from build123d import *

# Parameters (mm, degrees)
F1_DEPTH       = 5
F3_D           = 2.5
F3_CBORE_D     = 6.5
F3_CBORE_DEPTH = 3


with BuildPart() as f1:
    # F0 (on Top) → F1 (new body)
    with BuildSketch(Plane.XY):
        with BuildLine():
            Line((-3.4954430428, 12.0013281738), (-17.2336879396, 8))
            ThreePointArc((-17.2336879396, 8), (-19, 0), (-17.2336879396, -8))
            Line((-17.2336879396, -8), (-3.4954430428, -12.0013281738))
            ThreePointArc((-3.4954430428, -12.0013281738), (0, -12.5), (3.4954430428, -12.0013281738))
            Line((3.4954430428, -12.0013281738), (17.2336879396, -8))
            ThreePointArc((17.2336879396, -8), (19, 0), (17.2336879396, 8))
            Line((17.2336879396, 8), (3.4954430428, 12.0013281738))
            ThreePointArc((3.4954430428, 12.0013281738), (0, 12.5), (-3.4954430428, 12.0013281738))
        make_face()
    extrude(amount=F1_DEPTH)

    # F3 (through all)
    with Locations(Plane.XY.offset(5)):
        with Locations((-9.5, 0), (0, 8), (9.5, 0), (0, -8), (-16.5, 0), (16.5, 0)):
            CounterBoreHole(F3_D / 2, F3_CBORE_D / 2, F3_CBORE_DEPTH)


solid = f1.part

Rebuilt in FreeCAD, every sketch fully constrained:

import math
import FreeCAD as App
import Part
import Sketcher
Q = App.Units.Quantity

doc = App.newDocument("Part")
body = doc.addObject("PartDesign::Body", "Body")

# Sketch on XY plane
sketch1 = doc.addObject("Sketcher::SketchObject", "Sketch")
body.addObject(sketch1)
sketch1.AttachmentSupport = (doc.XY_Plane, [""])
sketch1.MapMode = "FlatFace"
sketch1.addGeometry([
    Part.LineSegment(App.Vector(-3, 12, 0), App.Vector(-17, 8, 0)),  # 0
    Part.ArcOfCircle(Part.Circle(App.Vector(0, 0, 0), App.Vector(0, 0, 1), 19), math.radians(155), math.radians(205)),  # 1
    Part.LineSegment(App.Vector(-17, -8, 0), App.Vector(-3, -12, 0)),  # 2
    Part.ArcOfCircle(Part.Circle(App.Vector(0, 0, 0), App.Vector(0, 0, 1), 13), math.radians(-106), math.radians(-74)),  # 3
    Part.LineSegment(App.Vector(3, -12, 0), App.Vector(17, -8, 0)),  # 4
    Part.ArcOfCircle(Part.Circle(App.Vector(0, 0, 0), App.Vector(0, 0, 1), 19), math.radians(-25), math.radians(25)),  # 5
    Part.LineSegment(App.Vector(17, 8, 0), App.Vector(3, 12, 0)),  # 6
    Part.ArcOfCircle(Part.Circle(App.Vector(0, 0, 0), App.Vector(0, 0, 1), 13), math.radians(74), math.radians(106)),  # 7
], False)
sketch1.addConstraint([
    Sketcher.Constraint("Coincident", 0, 2, 1, 1),
    Sketcher.Constraint("Coincident", 1, 2, 2, 1),
    Sketcher.Constraint("Tangent", 2, 2, 3, 1),
    Sketcher.Constraint("Tangent", 3, 2, 4, 1),
    Sketcher.Constraint("Coincident", 4, 2, 5, 1),
    Sketcher.Constraint("Coincident", 5, 2, 6, 1),
    Sketcher.Constraint("Tangent", 6, 2, 7, 1),
    Sketcher.Constraint("Tangent", 7, 2, 0, 1),
    Sketcher.Constraint("Coincident", 1, 3, -1, 1),
    Sketcher.Constraint("Coincident", 3, 3, -1, 1),
    Sketcher.Constraint("Coincident", 5, 3, -1, 1),
    Sketcher.Constraint("Coincident", 7, 3, -1, 1),
    Sketcher.Constraint("Equal", 1, 5),
    Sketcher.Constraint("Equal", 3, 7),
    Sketcher.Constraint("Parallel", 0, 4),
    Sketcher.Constraint("Parallel", 2, 6),
    Sketcher.Constraint("Horizontal", 2, 2, 3, 2),
    Sketcher.Constraint("Radius", 1, Q("19 mm")),
    Sketcher.Constraint("Radius", 3, Q("12.5 mm")),
    Sketcher.Constraint("DistanceY", -1, 1, 0, 2, Q("8 mm")),
])
pad1 = doc.addObject("PartDesign::Pad", "Pad")
body.addObject(pad1)
pad1.Profile = sketch1
pad1.Length = 5

# Sketch on XY plane
sketch2 = doc.addObject("Sketcher::SketchObject", "Sketch001")
body.addObject(sketch2)
sketch2.AttachmentSupport = (doc.XY_Plane, [""])
sketch2.MapMode = "FlatFace"
sketch2.AttachmentOffset = App.Placement(App.Vector(0, 0, 5), App.Rotation())
sketch2.addGeometry([
    Part.Circle(App.Vector(-9.5, 0, 0), App.Vector(0, 0, 1), 1.2),  # 0
    Part.Circle(App.Vector(0, 8, 0), App.Vector(0, 0, 1), 1.2),  # 1
    Part.Circle(App.Vector(9.5, 0, 0), App.Vector(0, 0, 1), 1.2),  # 2
    Part.Circle(App.Vector(0, -8, 0), App.Vector(0, 0, 1), 1.2),  # 3
    Part.Circle(App.Vector(-16.5, 0, 0), App.Vector(0, 0, 1), 1.2),  # 4
    Part.Circle(App.Vector(16.5, 0, 0), App.Vector(0, 0, 1), 1.2),  # 5
], False)
sketch2.addConstraint([
    Sketcher.Constraint("Equal", 0, 1),
    Sketcher.Constraint("Equal", 1, 2),
    Sketcher.Constraint("Equal", 2, 3),
    Sketcher.Constraint("Equal", 3, 4),
    Sketcher.Constraint("Equal", 4, 5),
    Sketcher.Constraint("Symmetric", 0, 3, 2, 3, -1, 1),
    Sketcher.Constraint("Symmetric", 1, 3, 3, 3, -1, 1),
    Sketcher.Constraint("Symmetric", 4, 3, 5, 3, -1, 1),
    Sketcher.Constraint("PointOnObject", 0, 3, -1),
    Sketcher.Constraint("PointOnObject", 1, 3, -2),
    Sketcher.Constraint("PointOnObject", 4, 3, -1),
    Sketcher.Constraint("Diameter", 0, Q("2.5 mm")),
    Sketcher.Constraint("DistanceY", -1, 1, 1, 3, Q("8 mm")),
    Sketcher.Constraint("DistanceX", 0, 3, 2, 3, Q("19 mm")),
    Sketcher.Constraint("DistanceX", 4, 3, 0, 3, Q("7 mm")),
])
doc.recompute()
hole = doc.addObject("PartDesign::Hole", "Hole")
body.addObject(hole)
hole.Profile = sketch2
hole.ThreadType = "None"
hole.Diameter = 2.5
hole.DepthType = "ThroughAll"
hole.HoleCutType = "Counterbore"
hole.HoleCutDiameter = 6.5
hole.HoleCutDepth = 3

doc.recompute()
